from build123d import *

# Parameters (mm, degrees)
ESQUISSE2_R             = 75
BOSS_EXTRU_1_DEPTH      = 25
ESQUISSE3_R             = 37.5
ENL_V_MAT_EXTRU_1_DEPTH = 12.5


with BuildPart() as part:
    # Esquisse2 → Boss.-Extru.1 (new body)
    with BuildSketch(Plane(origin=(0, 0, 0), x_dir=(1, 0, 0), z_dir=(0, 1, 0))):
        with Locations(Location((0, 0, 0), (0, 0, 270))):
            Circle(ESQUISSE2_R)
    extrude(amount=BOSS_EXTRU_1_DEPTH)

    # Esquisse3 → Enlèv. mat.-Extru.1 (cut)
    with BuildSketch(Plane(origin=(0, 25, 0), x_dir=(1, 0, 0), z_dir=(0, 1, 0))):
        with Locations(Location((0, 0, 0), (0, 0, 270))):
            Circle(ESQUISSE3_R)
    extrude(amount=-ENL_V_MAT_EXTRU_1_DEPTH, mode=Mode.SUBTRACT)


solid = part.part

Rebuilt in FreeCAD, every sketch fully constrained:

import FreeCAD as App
import Part
import Sketcher

doc = App.newDocument("Part")
body = doc.addObject("PartDesign::Body", "Body")

sketch1 = body.newObject("Sketcher::SketchObject", "Sketch")
sketch1.AttachmentSupport = (doc.getObject("XZ_Plane"), [""])
sketch1.MapMode = "FlatFace"
sketch1.addGeometry(Part.Circle(App.Vector(0, 0, 0), App.Vector(0, 0, 1), 75), False)
sketch1.addConstraint([
    Sketcher.Constraint("Coincident", 0, 3, -1, 1),
    Sketcher.Constraint("Diameter", 0, 150.0),
])
pad1 = body.newObject("PartDesign::Pad", "Pad")
pad1.Profile = sketch1
pad1.Length = 25
pad1.Reversed = True

sketch2 = body.newObject("Sketcher::SketchObject", "Sketch001")
sketch2.AttachmentSupport = (doc.getObject("XZ_Plane"), [""])
sketch2.MapMode = "FlatFace"
sketch2.AttachmentOffset = App.Placement(App.Vector(0, 0, -25), App.Rotation())
sketch2.addGeometry(Part.Circle(App.Vector(0, 0, 0), App.Vector(0, 0, 1), 38), False)
sketch2.addConstraint([
    Sketcher.Constraint("Coincident", 0, 3, -1, 1),
    Sketcher.Constraint("Diameter", 0, 75.0),
])
pocket1 = body.newObject("PartDesign::Pocket", "Pocket")
pocket1.Profile = sketch2
pocket1.Length = 12.5
pocket1.Reversed = True

doc.recompute()
